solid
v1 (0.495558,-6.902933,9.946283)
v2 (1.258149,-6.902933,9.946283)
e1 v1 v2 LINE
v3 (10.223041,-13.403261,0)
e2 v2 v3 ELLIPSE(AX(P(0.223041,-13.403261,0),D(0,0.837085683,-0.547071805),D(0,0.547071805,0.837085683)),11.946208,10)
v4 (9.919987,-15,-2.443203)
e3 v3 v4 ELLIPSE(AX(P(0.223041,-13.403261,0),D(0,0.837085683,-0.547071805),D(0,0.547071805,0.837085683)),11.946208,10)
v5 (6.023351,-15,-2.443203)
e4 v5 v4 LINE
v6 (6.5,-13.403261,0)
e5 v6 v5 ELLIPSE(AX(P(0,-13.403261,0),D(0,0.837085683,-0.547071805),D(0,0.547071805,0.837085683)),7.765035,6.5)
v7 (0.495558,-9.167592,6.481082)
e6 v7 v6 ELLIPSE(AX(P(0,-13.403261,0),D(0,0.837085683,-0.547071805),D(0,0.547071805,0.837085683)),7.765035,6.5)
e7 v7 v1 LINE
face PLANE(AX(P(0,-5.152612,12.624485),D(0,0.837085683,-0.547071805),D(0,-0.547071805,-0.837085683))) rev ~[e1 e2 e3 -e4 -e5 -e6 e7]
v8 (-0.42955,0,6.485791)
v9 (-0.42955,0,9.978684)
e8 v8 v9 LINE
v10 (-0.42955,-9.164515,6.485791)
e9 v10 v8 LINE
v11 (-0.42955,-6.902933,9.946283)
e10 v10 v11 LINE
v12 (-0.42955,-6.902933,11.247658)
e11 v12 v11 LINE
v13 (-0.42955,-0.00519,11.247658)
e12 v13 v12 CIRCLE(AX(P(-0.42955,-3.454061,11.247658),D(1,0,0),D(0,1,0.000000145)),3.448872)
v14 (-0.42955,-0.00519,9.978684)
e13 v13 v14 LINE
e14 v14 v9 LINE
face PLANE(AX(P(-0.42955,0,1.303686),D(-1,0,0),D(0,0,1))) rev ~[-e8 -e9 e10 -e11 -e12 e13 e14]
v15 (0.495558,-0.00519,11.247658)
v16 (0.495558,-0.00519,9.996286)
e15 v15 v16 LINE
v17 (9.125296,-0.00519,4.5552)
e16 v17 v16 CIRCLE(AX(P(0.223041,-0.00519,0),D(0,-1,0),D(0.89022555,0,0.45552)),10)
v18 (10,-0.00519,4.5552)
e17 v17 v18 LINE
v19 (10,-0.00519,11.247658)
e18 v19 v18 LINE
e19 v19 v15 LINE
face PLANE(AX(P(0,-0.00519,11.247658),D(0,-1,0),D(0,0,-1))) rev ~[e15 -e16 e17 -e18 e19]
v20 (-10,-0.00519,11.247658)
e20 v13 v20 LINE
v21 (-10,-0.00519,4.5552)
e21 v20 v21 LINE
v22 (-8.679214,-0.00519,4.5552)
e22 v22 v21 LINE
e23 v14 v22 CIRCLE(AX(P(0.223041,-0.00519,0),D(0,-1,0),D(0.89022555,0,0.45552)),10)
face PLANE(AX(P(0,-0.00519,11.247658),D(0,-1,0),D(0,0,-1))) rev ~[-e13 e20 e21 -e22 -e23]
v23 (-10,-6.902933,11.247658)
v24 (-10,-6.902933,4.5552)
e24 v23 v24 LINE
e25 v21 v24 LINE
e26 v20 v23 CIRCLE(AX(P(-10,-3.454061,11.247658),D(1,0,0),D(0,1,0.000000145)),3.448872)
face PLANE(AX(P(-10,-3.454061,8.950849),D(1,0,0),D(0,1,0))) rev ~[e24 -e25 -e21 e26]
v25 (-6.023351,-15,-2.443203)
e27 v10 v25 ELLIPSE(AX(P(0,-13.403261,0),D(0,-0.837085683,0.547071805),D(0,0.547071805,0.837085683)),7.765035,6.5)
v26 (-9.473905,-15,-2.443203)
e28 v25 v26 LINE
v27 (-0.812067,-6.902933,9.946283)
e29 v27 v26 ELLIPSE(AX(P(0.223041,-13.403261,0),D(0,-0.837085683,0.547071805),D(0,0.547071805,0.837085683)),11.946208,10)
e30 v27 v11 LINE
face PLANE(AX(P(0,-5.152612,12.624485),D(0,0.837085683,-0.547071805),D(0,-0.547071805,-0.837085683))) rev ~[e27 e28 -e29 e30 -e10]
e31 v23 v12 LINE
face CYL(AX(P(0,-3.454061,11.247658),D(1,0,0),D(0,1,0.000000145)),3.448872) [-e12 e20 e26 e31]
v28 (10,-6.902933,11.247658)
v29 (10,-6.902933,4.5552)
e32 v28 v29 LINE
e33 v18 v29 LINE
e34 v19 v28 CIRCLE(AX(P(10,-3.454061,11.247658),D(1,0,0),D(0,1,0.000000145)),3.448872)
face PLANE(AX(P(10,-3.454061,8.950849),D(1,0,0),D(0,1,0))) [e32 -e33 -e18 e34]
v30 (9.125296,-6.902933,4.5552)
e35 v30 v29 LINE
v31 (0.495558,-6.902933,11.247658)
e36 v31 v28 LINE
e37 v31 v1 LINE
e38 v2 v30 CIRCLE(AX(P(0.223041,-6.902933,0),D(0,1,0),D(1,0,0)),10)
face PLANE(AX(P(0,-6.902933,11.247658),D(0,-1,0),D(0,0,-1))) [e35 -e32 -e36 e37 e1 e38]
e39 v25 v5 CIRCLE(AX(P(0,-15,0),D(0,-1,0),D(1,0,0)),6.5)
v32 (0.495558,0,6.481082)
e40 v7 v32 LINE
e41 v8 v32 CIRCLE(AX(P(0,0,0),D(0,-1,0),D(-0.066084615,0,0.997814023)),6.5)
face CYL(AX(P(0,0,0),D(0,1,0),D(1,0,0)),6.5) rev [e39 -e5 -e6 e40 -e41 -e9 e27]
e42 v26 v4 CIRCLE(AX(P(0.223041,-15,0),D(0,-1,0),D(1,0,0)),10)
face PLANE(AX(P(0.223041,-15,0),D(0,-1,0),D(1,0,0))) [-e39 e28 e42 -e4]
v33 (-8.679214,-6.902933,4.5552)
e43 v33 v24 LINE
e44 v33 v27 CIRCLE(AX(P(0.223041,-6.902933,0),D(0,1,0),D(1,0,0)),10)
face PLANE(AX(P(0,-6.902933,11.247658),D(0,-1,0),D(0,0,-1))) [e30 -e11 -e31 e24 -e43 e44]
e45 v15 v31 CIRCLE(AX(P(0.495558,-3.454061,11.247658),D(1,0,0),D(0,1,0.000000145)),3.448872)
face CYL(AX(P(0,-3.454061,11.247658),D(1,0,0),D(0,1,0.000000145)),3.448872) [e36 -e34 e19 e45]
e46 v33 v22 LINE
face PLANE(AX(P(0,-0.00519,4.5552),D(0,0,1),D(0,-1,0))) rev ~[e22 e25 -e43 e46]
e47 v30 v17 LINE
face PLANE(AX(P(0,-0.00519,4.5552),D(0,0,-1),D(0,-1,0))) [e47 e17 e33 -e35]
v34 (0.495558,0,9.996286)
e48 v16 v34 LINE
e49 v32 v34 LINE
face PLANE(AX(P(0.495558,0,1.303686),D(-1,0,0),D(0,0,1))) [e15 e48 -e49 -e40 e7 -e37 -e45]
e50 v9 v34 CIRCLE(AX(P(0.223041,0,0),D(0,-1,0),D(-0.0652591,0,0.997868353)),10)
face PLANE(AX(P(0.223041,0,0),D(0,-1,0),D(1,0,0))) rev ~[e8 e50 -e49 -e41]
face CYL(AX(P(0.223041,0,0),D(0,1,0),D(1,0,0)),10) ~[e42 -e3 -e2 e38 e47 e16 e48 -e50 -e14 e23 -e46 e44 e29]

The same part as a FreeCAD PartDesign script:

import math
import FreeCAD as App
import Part
import Sketcher
from FreeCAD import Vector
Q = App.Units.Quantity

doc = App.newDocument("Part")
body = doc.addObject("PartDesign::Body", "Body")

# Sketch on XZ plane
sketch1 = doc.addObject("Sketcher::SketchObject", "Sketch")
body.addObject(sketch1)
sketch1.AttachmentSupport = (doc.XZ_Plane, [""])
sketch1.MapMode = "FlatFace"
sketch1.addGeometry(Part.Circle(Vector(0, 0, 0), Vector(0, 0, 1), 10), False)
sketch1.addGeometry(Part.Circle(Vector(0, 0, 0), Vector(0, 0, 1), 6), False)
sketch1.addConstraint(Sketcher.Constraint("Coincident", 1, 3, -1, 1))
sketch1.addConstraint(Sketcher.Constraint("PointOnObject", 0, 3, -1))
sketch1.addConstraint(Sketcher.Constraint("Diameter", 0, Q("20 mm")))
sketch1.addConstraint(Sketcher.Constraint("Diameter", 1, Q("13 mm")))
sketch1.addConstraint(Sketcher.Constraint("DistanceX", -1, 1, 0, 3, Q("0.223041 mm")))
pad1 = doc.addObject("PartDesign::Pad", "Pad")
body.addObject(pad1)
pad1.Profile = sketch1
pad1.Length = 15

# Sketch on YZ plane
sketch2 = doc.addObject("Sketcher::SketchObject", "Sketch001")
body.addObject(sketch2)
sketch2.AttachmentSupport = (doc.YZ_Plane, [""])
sketch2.MapMode = "FlatFace"
sketch2.addGeometry(Part.LineSegment(Vector(-18, -6, 0), Vector(-5, 13, 0)), False)
sketch2.addGeometry(Part.LineSegment(Vector(-5, 13, 0), Vector(-10, 21, 0)), False)
sketch2.addGeometry(Part.LineSegment(Vector(-10, 21, 0), Vector(-30, 15, 0)), False)
sketch2.addGeometry(Part.LineSegment(Vector(-30, 15, 0), Vector(-18, -6, 0)), False)
sketch2.addConstraint(Sketcher.Constraint("Coincident", 0, 2, 1, 1))
sketch2.addConstraint(Sketcher.Constraint("Coincident", 1, 2, 2, 1))
sketch2.addConstraint(Sketcher.Constraint("Coincident", 2, 2, 3, 1))
sketch2.addConstraint(Sketcher.Constraint("Coincident", 3, 2, 0, 1))
sketch2.addConstraint(Sketcher.Constraint("DistanceY", -1, 1, 1, 2, Q("21.22482 mm")))
sketch2.addConstraint(Sketcher.Constraint("DistanceY", -1, 1, 2, 2, Q("15.01538 mm")))
sketch2.addConstraint(Sketcher.Constraint("DistanceX", 3, 2, -1, 1, Q("17.571489 mm")))
sketch2.addConstraint(Sketcher.Constraint("DistanceY", 3, 2, -1, 1, Q("6.377891 mm")))
sketch2.addConstraint(Sketcher.Constraint("DistanceX", 2, 2, 1, 2, Q("20.049751 mm")))
sketch2.addConstraint(Sketcher.Constraint("Distance", 0, Q("22.700634 mm")))
sketch2.addConstraint(Sketcher.Constraint("Distance", 1, Q("9.974448 mm")))
sketch2.addConstraint(Sketcher.Constraint("Distance", 3, Q("24.870267 mm")))
pocket1 = doc.addObject("PartDesign::Pocket", "Pocket")
body.addObject(pocket1)
pocket1.Profile = sketch2
pocket1.Type = "ThroughAll"
pocket1.Midplane = True

# Sketch on YZ plane
sketch3 = doc.addObject("Sketcher::SketchObject", "Sketch002")
body.addObject(sketch3)
sketch3.AttachmentSupport = (doc.YZ_Plane, [""])
sketch3.MapMode = "FlatFace"
sketch3.addGeometry(Part.ArcOfCircle(Part.Circle(Vector(-3.5, 11.2, 0), Vector(0, 0, 1), 3.4), math.radians(0), math.radians(180)), False)
sketch3.addGeometry(Part.LineSegment(Vector(-6.9, 11.2, 0), Vector(-6.9, 4.6, 0)), False)
sketch3.addGeometry(Part.LineSegment(Vector(-6.9, 4.6, 0), Vector(0, 4.6, 0)), False)
sketch3.addGeometry(Part.LineSegment(Vector(0, 4.6, 0), Vector(0, 11.2, 0)), False)
sketch3.addConstraint(Sketcher.Constraint("Tangent", 0, 2, 1, 1))
sketch3.addConstraint(Sketcher.Constraint("Coincident", 1, 2, 2, 1))
sketch3.addConstraint(Sketcher.Constraint("Coincident", 2, 2, 3, 1))
sketch3.addConstraint(Sketcher.Constraint("Tangent", 3, 2, 0, 1))
sketch3.addConstraint(Sketcher.Constraint("Vertical", 1))
sketch3.addConstraint(Sketcher.Constraint("Horizontal", 2))
sketch3.addConstraint(Sketcher.Constraint("Vertical", 3))
sketch3.addConstraint(Sketcher.Constraint("Radius", 0, Q("3.448872 mm")))
sketch3.addConstraint(Sketcher.Constraint("DistanceY", -1, 1, 1, 2, Q("4.5552 mm")))
sketch3.addConstraint(Sketcher.Constraint("DistanceY", 1, 2, 1, 1, Q("6.692458 mm")))
sketch3.addConstraint(Sketcher.Constraint("DistanceX", 0, 3, -1, 1, Q("3.454061 mm")))
pad2 = doc.addObject("PartDesign::Pad", "Pad001")
body.addObject(pad2)
pad2.Profile = sketch3
pad2.Type = "TwoLengths"
pad2.Length = 10
pad2.Length2 = 10

# Sketch on XZ plane
sketch4 = doc.addObject("Sketcher::SketchObject", "Sketch003")
body.addObject(sketch4)
sketch4.AttachmentSupport = (doc.XZ_Plane, [""])
sketch4.MapMode = "FlatFace"
sketch4.addGeometry(Part.LineSegment(Vector(-0.4, 23.3, 0), Vector(-0.4, 1.3, 0)), False)
sketch4.addGeometry(Part.LineSegment(Vector(-0.4, 1.3, 0), Vector(0.5, 1.3, 0)), False)
sketch4.addGeometry(Part.LineSegment(Vector(0.5, 1.3, 0), Vector(0.5, 23.3, 0)), False)
sketch4.addGeometry(Part.LineSegment(Vector(0.5, 23.3, 0), Vector(-0.4, 23.3, 0)), False)
sketch4.addConstraint(Sketcher.Constraint("Coincident", 0, 2, 1, 1))
sketch4.addConstraint(Sketcher.Constraint("Coincident", 1, 2, 2, 1))
sketch4.addConstraint(Sketcher.Constraint("Coincident", 2, 2, 3, 1))
sketch4.addConstraint(Sketcher.Constraint("Coincident", 3, 2, 0, 1))
sketch4.addConstraint(Sketcher.Constraint("Vertical", 0))
sketch4.addConstraint(Sketcher.Constraint("Horizontal", 1))
sketch4.addConstraint(Sketcher.Constraint("Vertical", 2))
sketch4.addConstraint(Sketcher.Constraint("Horizontal", 3))
sketch4.addConstraint(Sketcher.Constraint("DistanceX", 1, 1, 1, 2, Q("0.925108 mm")))
sketch4.addConstraint(Sketcher.Constraint("DistanceY", -1, 1, 2, 2, Q("23.273501 mm")))
sketch4.addConstraint(Sketcher.Constraint("DistanceY", 0, 2, 0, 1, Q("21.969815 mm")))
sketch4.addConstraint(Sketcher.Constraint("DistanceX", 0, 2, -1, 1, Q("0.42955 mm")))
pocket2 = doc.addObject("PartDesign::Pocket", "Pocket001")
body.addObject(pocket2)
pocket2.Profile = sketch4
pocket2.Type = "ThroughAll"
pocket2.Midplane = True

# Sketch on XZ plane
sketch5 = doc.addObject("Sketcher::SketchObject", "Sketch004")
body.addObject(sketch5)
sketch5.AttachmentSupport = (doc.XZ_Plane, [""])
sketch5.MapMode = "FlatFace"
sketch5.addGeometry(Part.Circle(Vector(0, 0, 0), Vector(0, 0, 1), 6), False)
sketch5.addConstraint(Sketcher.Constraint("Coincident", 0, 3, -1, 1))
sketch5.addConstraint(Sketcher.Constraint("Diameter", 0, Q("13 mm")))
pocket3 = doc.addObject("PartDesign::Pocket", "Pocket002")
body.addObject(pocket3)
pocket3.Profile = sketch5
pocket3.Type = "ThroughAll"
pocket3.Midplane = True

doc.recompute()
